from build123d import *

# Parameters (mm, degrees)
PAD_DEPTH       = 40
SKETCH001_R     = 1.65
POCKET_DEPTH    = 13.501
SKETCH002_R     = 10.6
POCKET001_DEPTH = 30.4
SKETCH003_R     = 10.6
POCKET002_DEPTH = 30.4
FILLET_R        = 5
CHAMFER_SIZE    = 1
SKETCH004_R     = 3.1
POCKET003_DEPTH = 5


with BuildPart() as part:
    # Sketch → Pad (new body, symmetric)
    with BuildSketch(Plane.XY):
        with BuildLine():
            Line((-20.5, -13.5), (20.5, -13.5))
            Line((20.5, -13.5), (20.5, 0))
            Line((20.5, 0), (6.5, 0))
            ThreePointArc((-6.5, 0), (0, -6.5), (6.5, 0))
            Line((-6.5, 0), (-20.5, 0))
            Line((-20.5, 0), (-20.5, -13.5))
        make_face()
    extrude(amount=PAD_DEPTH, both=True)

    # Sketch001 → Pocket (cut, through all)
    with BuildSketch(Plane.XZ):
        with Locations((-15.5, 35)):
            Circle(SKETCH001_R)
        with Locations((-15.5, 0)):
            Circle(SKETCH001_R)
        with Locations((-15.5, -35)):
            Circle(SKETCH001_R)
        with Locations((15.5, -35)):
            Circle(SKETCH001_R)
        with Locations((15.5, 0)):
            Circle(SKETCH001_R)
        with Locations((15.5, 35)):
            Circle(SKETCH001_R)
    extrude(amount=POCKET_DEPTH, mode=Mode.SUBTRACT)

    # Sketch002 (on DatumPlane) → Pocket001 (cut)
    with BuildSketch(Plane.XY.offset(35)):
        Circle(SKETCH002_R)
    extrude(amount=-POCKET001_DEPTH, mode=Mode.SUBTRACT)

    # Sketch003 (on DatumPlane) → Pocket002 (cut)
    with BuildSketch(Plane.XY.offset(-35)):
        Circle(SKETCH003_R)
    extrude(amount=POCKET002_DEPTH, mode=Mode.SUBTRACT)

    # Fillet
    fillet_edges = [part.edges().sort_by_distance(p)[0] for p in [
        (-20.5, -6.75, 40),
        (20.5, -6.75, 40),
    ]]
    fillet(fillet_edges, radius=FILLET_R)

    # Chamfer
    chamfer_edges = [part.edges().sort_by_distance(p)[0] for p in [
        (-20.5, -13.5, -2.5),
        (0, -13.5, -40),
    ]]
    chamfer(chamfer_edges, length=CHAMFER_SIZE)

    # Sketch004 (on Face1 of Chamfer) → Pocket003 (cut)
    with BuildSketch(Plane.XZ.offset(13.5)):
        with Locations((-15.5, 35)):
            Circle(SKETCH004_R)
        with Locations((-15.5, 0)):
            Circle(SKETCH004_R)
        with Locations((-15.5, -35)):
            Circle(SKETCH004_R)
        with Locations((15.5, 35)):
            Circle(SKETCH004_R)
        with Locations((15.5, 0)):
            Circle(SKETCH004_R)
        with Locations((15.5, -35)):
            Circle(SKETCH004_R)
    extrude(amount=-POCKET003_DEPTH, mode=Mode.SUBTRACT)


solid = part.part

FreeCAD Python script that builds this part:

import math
import FreeCAD as App
import Part
import Sketcher
Q = App.Units.Quantity


def edges_at(feature, points):
    """Names of the edges that pass closest to the given points."""
    edges = feature.Shape.Edges
    near = lambda p: min(range(len(edges)), key=lambda i: edges[i].distToShape(Part.Vertex(*p))[0])
    return sorted({f"Edge{near(p) + 1}" for p in points})

doc = App.newDocument("Part")
body = doc.addObject("PartDesign::Body", "Body")

# Sketch on XY plane
sketch1 = body.newObject("Sketcher::SketchObject", "Sketch")
sketch1.AttachmentSupport = (doc.getObject("XY_Plane"), [""])
sketch1.MapMode = "FlatFace"
sketch1.addGeometry([
    Part.LineSegment(App.Vector(-20, -14, 0), App.Vector(20, -14, 0)),  # 0
    Part.LineSegment(App.Vector(20, -14, 0), App.Vector(20, 0, 0)),  # 1
    Part.LineSegment(App.Vector(20, 0, 0), App.Vector(6, 0, 0)),  # 2
    Part.ArcOfCircle(Part.Circle(App.Vector(0, 0, 0), App.Vector(0, 0, 1), 6), math.radians(180), math.radians(360)),  # 3
    Part.LineSegment(App.Vector(-6, 0, 0), App.Vector(-20, 0, 0)),  # 4
    Part.LineSegment(App.Vector(-20, 0, 0), App.Vector(-20, -14, 0)),  # 5
], False)
sketch1.addConstraint([
    Sketcher.Constraint("Coincident", 0, 2, 1, 1),
    Sketcher.Constraint("Coincident", 1, 2, 2, 1),
    Sketcher.Constraint("Coincident", 2, 2, 3, 2),
    Sketcher.Constraint("Coincident", 3, 1, 4, 1),
    Sketcher.Constraint("Coincident", 4, 2, 5, 1),
    Sketcher.Constraint("Coincident", 5, 2, 0, 1),
    Sketcher.Constraint("Horizontal", 0),
    Sketcher.Constraint("Vertical", 1),
    Sketcher.Constraint("Horizontal", 2),
    Sketcher.Constraint("Horizontal", 4),
    Sketcher.Constraint("Vertical", 5),
    Sketcher.Constraint("Coincident", 3, 3, -1, 1),
    Sketcher.Constraint("Symmetric", 1, 2, 4, 2, -1, 1),
    Sketcher.Constraint("PointOnObject", 1, 2, -1),
    Sketcher.Constraint("Radius", 3, Q("6.5 mm")),
    Sketcher.Constraint("DistanceX", 0, 1, 0, 2, Q("41 mm")),
    Sketcher.Constraint("DistanceY", 1, 1, 1, 2, Q("13.5 mm")),
])
pad1 = body.newObject("PartDesign::Pad", "Pad")
pad1.Profile = sketch1
pad1.Length = 80
pad1.Midplane = True

# Sketch on XZ plane
sketch2 = body.newObject("Sketcher::SketchObject", "Sketch001")
sketch2.AttachmentSupport = (doc.getObject("XZ_Plane"), [""])
sketch2.MapMode = "FlatFace"
sketch2.addGeometry([
    Part.Circle(App.Vector(-15.5, 35, 0), App.Vector(0, 0, 1), 1.6),  # 0
    Part.Circle(App.Vector(-15.5, 0, 0), App.Vector(0, 0, 1), 1.6),  # 1
    Part.Circle(App.Vector(-15.5, -35, 0), App.Vector(0, 0, 1), 1.6),  # 2
    Part.Circle(App.Vector(15.5, -35, 0), App.Vector(0, 0, 1), 1.6),  # 3
    Part.Circle(App.Vector(15.5, 0, 0), App.Vector(0, 0, 1), 1.6),  # 4
    Part.Circle(App.Vector(15.5, 35, 0), App.Vector(0, 0, 1), 1.6),  # 5
], False)
sketch2.addConstraint([
    Sketcher.Constraint("Equal", 0, 1),
    Sketcher.Constraint("Equal", 1, 2),
    Sketcher.Constraint("Equal", 2, 3),
    Sketcher.Constraint("Equal", 3, 4),
    Sketcher.Constraint("Equal", 4, 5),
    Sketcher.Constraint("Symmetric", 0, 3, 3, 3, -1, 1),
    Sketcher.Constraint("Symmetric", 1, 3, 4, 3, -1, 1),
    Sketcher.Constraint("Symmetric", 2, 3, 5, 3, -1, 1),
    Sketcher.Constraint("Symmetric", 2, 3, 3, 3, -2),
    Sketcher.Constraint("PointOnObject", 1, 3, -1),
    Sketcher.Constraint("Vertical", 0, 3, 1, 3),
    Sketcher.Constraint("Diameter", 0, Q("3.3 mm")),
    Sketcher.Constraint("DistanceY", -1, 1, 0, 3, Q("35 mm")),
    Sketcher.Constraint("DistanceX", 2, 3, 3, 3, Q("31 mm")),
])
pocket1 = body.newObject("PartDesign::Pocket", "Pocket")
pocket1.Profile = sketch2
pocket1.Type = "ThroughAll"
pocket1.Reversed = True

# Sketch on XY plane
sketch3 = body.newObject("Sketcher::SketchObject", "Sketch002")
sketch3.AttachmentSupport = (doc.getObject("XY_Plane"), [""])
sketch3.MapMode = "FlatFace"
sketch3.AttachmentOffset = App.Placement(App.Vector(0, 0, 35), App.Rotation())
sketch3.addGeometry(Part.Circle(App.Vector(0, 0, 0), App.Vector(0, 0, 1), 11), False)
sketch3.addConstraint([
    Sketcher.Constraint("Coincident", 0, 3, -1, 1),
    Sketcher.Constraint("Diameter", 0, Q("21.2 mm")),
])
pocket2 = body.newObject("PartDesign::Pocket", "Pocket001")
pocket2.Profile = sketch3
pocket2.Length = 30.4

# Sketch on XY plane
sketch4 = body.newObject("Sketcher::SketchObject", "Sketch003")
sketch4.AttachmentSupport = (doc.getObject("XY_Plane"), [""])
sketch4.MapMode = "FlatFace"
sketch4.AttachmentOffset = App.Placement(App.Vector(0, 0, -35), App.Rotation())
sketch4.addGeometry(Part.Circle(App.Vector(0, 0, 0), App.Vector(0, 0, 1), 11), False)
sketch4.addConstraint([
    Sketcher.Constraint("Coincident", 0, 3, -1, 1),
    Sketcher.Constraint("Diameter", 0, Q("21.2 mm")),
])
pocket3 = body.newObject("PartDesign::Pocket", "Pocket002")
pocket3.Profile = sketch4
pocket3.Length = 30.4
pocket3.Reversed = True
doc.recompute()

fillet = body.newObject("PartDesign::Fillet", "Fillet")
fillet.Base = (pocket3, edges_at(pocket3, [(-20.5, -6.75, 40), (20.5, -6.75, 40)]))
fillet.Radius = 5
doc.recompute()

chamfer = body.newObject("PartDesign::Chamfer", "Chamfer")
chamfer.Base = (fillet, edges_at(fillet, [(-20.5, -13.5, -2.5), (0, -13.5, -40)]))
chamfer.Size = 1

# Sketch on XZ plane
sketch5 = body.newObject("Sketcher::SketchObject", "Sketch004")
sketch5.AttachmentSupport = (doc.getObject("XZ_Plane"), [""])
sketch5.MapMode = "FlatFace"
sketch5.AttachmentOffset = App.Placement(App.Vector(0, 0, 13.5), App.Rotation())
sketch5.addGeometry([
    Part.Circle(App.Vector(-15.5, 35, 0), App.Vector(0, 0, 1), 3.1),  # 0
    Part.Circle(App.Vector(-15.5, 0, 0), App.Vector(0, 0, 1), 3.1),  # 1
    Part.Circle(App.Vector(-15.5, -35, 0), App.Vector(0, 0, 1), 3.1),  # 2
    Part.Circle(App.Vector(15.5, 35, 0), App.Vector(0, 0, 1), 3.1),  # 3
    Part.Circle(App.Vector(15.5, 0, 0), App.Vector(0, 0, 1), 3.1),  # 4
    Part.Circle(App.Vector(15.5, -35, 0), App.Vector(0, 0, 1), 3.1),  # 5
], False)
sketch5.addConstraint([
    Sketcher.Constraint("Equal", 0, 1),
    Sketcher.Constraint("Equal", 1, 2),
    Sketcher.Constraint("Equal", 2, 3),
    Sketcher.Constraint("Equal", 3, 4),
    Sketcher.Constraint("Equal", 4, 5),
    Sketcher.Constraint("Symmetric", 2, 3, 3, 3, -1, 1),
    Sketcher.Constraint("Symmetric", 1, 3, 4, 3, -1, 1),
    Sketcher.Constraint("Symmetric", 0, 3, 5, 3, -1, 1),
    Sketcher.Constraint("Symmetric", 0, 3, 3, 3, -2),
    Sketcher.Constraint("PointOnObject", 1, 3, -1),
    Sketcher.Constraint("Vertical", 0, 3, 1, 3),
    Sketcher.Constraint("Diameter", 0, Q("6.2 mm")),
    Sketcher.Constraint("DistanceY", -1, 1, 0, 3, Q("35 mm")),
    Sketcher.Constraint("DistanceX", 0, 3, 3, 3, Q("31 mm")),
])
pocket4 = body.newObject("PartDesign::Pocket", "Pocket003")
pocket4.Profile = sketch5
pocket4.Length = 5

doc.recompute()
